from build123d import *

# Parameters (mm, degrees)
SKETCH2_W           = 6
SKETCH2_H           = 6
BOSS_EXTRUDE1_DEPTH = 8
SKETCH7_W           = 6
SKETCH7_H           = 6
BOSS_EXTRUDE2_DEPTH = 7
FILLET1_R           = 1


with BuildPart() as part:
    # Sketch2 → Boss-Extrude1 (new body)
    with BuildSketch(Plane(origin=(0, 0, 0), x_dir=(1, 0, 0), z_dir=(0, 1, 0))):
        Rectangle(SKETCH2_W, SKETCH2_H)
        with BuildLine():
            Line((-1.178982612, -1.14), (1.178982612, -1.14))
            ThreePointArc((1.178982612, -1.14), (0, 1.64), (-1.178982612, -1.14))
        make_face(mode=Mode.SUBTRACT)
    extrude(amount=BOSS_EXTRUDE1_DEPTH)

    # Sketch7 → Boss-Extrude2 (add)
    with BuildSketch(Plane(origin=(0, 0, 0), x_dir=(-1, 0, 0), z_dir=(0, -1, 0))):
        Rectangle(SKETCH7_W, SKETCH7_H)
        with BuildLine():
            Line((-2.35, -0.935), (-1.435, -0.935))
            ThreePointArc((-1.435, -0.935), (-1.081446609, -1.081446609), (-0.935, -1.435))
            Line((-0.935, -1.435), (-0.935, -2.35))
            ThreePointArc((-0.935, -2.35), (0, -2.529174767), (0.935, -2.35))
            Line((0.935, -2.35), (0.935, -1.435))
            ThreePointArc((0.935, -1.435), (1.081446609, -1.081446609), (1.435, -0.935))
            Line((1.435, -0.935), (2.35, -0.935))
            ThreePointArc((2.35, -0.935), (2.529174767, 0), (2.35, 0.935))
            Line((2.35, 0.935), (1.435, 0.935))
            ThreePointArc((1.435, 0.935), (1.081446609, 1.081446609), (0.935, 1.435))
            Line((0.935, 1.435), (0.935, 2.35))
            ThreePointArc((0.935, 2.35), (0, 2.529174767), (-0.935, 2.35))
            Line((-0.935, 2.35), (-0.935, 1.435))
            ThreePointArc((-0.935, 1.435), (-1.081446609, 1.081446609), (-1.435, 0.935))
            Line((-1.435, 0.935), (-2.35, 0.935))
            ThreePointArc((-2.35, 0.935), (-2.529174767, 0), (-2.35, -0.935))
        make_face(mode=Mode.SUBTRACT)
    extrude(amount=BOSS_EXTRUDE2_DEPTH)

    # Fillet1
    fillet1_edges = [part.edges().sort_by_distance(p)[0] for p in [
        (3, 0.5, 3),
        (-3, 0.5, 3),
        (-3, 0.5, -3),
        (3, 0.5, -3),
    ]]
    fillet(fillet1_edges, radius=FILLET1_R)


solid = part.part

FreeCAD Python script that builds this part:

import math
import FreeCAD as App
import Part
import Sketcher

V = App.Vector


def edges_at(feature, points):
    """Names of the edges that pass closest to the given points."""
    edges = feature.Shape.Edges
    near = lambda p: min(range(len(edges)), key=lambda i: edges[i].distToShape(Part.Vertex(*p))[0])
    return sorted({f"Edge{near(p) + 1}" for p in points})


def add_polygon(sketch, points):
    """Adds a closed chain of lines whose ends are joined by coincident constraints."""
    first, n = sketch.GeometryCount, len(points)
    for a, b in zip(points, points[1:] + points[:1]):
        sketch.addGeometry(Part.LineSegment(App.Vector(*a, 0), App.Vector(*b, 0)), False)
    for i in range(n):
        sketch.addConstraint(Sketcher.Constraint("Coincident", first + i, 2, first + (i + 1) % n, 1))

doc = App.newDocument("Part")
body = doc.addObject("PartDesign::Body", "Body")

# Sketch on XZ plane
sketch1 = body.newObject("Sketcher::SketchObject", "Sketch")
sketch1.AttachmentSupport = (doc.getObject("XZ_Plane"), [""])
sketch1.MapMode = "FlatFace"
add_polygon(sketch1, [(-3, -3), (-3, 3), (3, 3), (3, -3)])  # lines 0-3
sketch1.addGeometry(Part.LineSegment(V(1.2, 1.1, 0), V(-1.2, 1.1, 0)), False)  # 4
sketch1.addGeometry(Part.ArcOfCircle(Part.Circle(V(0, 0, 0), V(0, 0, 1), 1.6), math.radians(136), math.radians(404)), False)  # 5
sketch1.addConstraint(Sketcher.Constraint("Coincident", 4, 1, 5, 2))
sketch1.addConstraint(Sketcher.Constraint("Coincident", 5, 1, 4, 2))
sketch1.addConstraint(Sketcher.Constraint("Vertical", 0))
sketch1.addConstraint(Sketcher.Constraint("Horizontal", 1))
sketch1.addConstraint(Sketcher.Constraint("Vertical", 2))
sketch1.addConstraint(Sketcher.Constraint("Horizontal", 3))
sketch1.addConstraint(Sketcher.Constraint("Horizontal", 4))
sketch1.addConstraint(Sketcher.Constraint("Coincident", 5, 3, -1, 1))
sketch1.addConstraint(Sketcher.Constraint("Symmetric", 0, 2, 2, 2, -1, 1))
sketch1.addConstraint(Sketcher.Constraint("Equal", 3, 0))
sketch1.addConstraint(Sketcher.Constraint("DistanceX", 1, 1, 1, 2, 6.0))
sketch1.addConstraint(Sketcher.Constraint("Radius", 5, 1.64))
sketch1.addConstraint(Sketcher.Constraint("DistanceY", -1, 1, 4, 1, 1.14))
pad1 = body.newObject("PartDesign::Pad", "Pad")
pad1.Profile = sketch1
pad1.Length = 8
pad1.Reversed = True

# Sketch on XZ plane
sketch2 = body.newObject("Sketcher::SketchObject", "Sketch001")
sketch2.AttachmentSupport = (doc.getObject("XZ_Plane"), [""])
sketch2.MapMode = "FlatFace"
add_polygon(sketch2, [(3, -3), (3, 3), (-3, 3), (-3, -3)])  # lines 0-3
sketch2.addGeometry(Part.LineSegment(V(1.44, 0.94, 0), V(2.35, 0.94, 0)), False)  # 4
sketch2.addGeometry(Part.ArcOfCircle(Part.Circle(V(0, 0, 0), V(0, 0, 1), 2.53), math.radians(-22), math.radians(22)), False)  # 5
sketch2.addGeometry(Part.LineSegment(V(2.35, -0.94, 0), V(1.44, -0.94, 0)), False)  # 6
sketch2.addGeometry(Part.ArcOfCircle(Part.Circle(V(1.43, -1.43, 0), V(0, 0, 1), 0.5), math.radians(90), math.radians(180)), False)  # 7
sketch2.addGeometry(Part.LineSegment(V(0.94, -1.44, 0), V(0.94, -2.35, 0)), False)  # 8
sketch2.addGeometry(Part.ArcOfCircle(Part.Circle(V(0, 0, 0), V(0, 0, 1), 2.53), math.radians(-112), math.radians(-68)), False)  # 9
sketch2.addGeometry(Part.LineSegment(V(-0.94, -2.35, 0), V(-0.94, -1.44, 0)), False)  # 10
sketch2.addGeometry(Part.ArcOfCircle(Part.Circle(V(-1.43, -1.43, 0), V(0, 0, 1), 0.5), math.radians(0), math.radians(90)), False)  # 11
sketch2.addGeometry(Part.LineSegment(V(-1.44, -0.94, 0), V(-2.35, -0.94, 0)), False)  # 12
sketch2.addGeometry(Part.ArcOfCircle(Part.Circle(V(0, 0, 0), V(0, 0, 1), 2.53), math.radians(158), math.radians(202)), False)  # 13
sketch2.addGeometry(Part.LineSegment(V(-2.35, 0.94, 0), V(-1.44, 0.94, 0)), False)  # 14
sketch2.addGeometry(Part.ArcOfCircle(Part.Circle(V(-1.43, 1.43, 0), V(0, 0, 1), 0.5), math.radians(-90), math.radians(0)), False)  # 15
sketch2.addGeometry(Part.LineSegment(V(-0.94, 1.44, 0), V(-0.94, 2.35, 0)), False)  # 16
sketch2.addGeometry(Part.ArcOfCircle(Part.Circle(V(0, 0, 0), V(0, 0, 1), 2.53), math.radians(68), math.radians(112)), False)  # 17
sketch2.addGeometry(Part.LineSegment(V(0.94, 2.35, 0), V(0.94, 1.44, 0)), False)  # 18
sketch2.addGeometry(Part.ArcOfCircle(Part.Circle(V(1.43, 1.43, 0), V(0, 0, 1), 0.5), math.radians(180), math.radians(270)), False)  # 19
sketch2.addConstraint(Sketcher.Constraint("Coincident", 4, 2, 5, 2))
sketch2.addConstraint(Sketcher.Constraint("Coincident", 5, 1, 6, 1))
sketch2.addConstraint(Sketcher.Constraint("Tangent", 6, 2, 7, 1))
sketch2.addConstraint(Sketcher.Constraint("Tangent", 7, 2, 8, 1))
sketch2.addConstraint(Sketcher.Constraint("Coincident", 8, 2, 9, 2))
sketch2.addConstraint(Sketcher.Constraint("Coincident", 9, 1, 10, 1))
sketch2.addConstraint(Sketcher.Constraint("Tangent", 10, 2, 11, 1))
sketch2.addConstraint(Sketcher.Constraint("Tangent", 11, 2, 12, 1))
sketch2.addConstraint(Sketcher.Constraint("Coincident", 12, 2, 13, 2))
sketch2.addConstraint(Sketcher.Constraint("Coincident", 13, 1, 14, 1))
sketch2.addConstraint(Sketcher.Constraint("Tangent", 14, 2, 15, 1))
sketch2.addConstraint(Sketcher.Constraint("Tangent", 15, 2, 16, 1))
sketch2.addConstraint(Sketcher.Constraint("Coincident", 16, 2, 17, 2))
sketch2.addConstraint(Sketcher.Constraint("Coincident", 17, 1, 18, 1))
sketch2.addConstraint(Sketcher.Constraint("Tangent", 18, 2, 19, 1))
sketch2.addConstraint(Sketcher.Constraint("Tangent", 19, 2, 4, 1))
sketch2.addConstraint(Sketcher.Constraint("Vertical", 0))
sketch2.addConstraint(Sketcher.Constraint("Horizontal", 1))
sketch2.addConstraint(Sketcher.Constraint("Vertical", 2))
sketch2.addConstraint(Sketcher.Constraint("Horizontal", 3))
sketch2.addConstraint(Sketcher.Constraint("Horizontal", 4))
sketch2.addConstraint(Sketcher.Constraint("Horizontal", 6))
sketch2.addConstraint(Sketcher.Constraint("Vertical", 8))
sketch2.addConstraint(Sketcher.Constraint("Vertical", 10))
sketch2.addConstraint(Sketcher.Constraint("Horizontal", 12))
sketch2.addConstraint(Sketcher.Constraint("Horizontal", 14))
sketch2.addConstraint(Sketcher.Constraint("Vertical", 16))
sketch2.addConstraint(Sketcher.Constraint("Vertical", 18))
sketch2.addConstraint(Sketcher.Constraint("Coincident", 5, 3, -1, 1))
sketch2.addConstraint(Sketcher.Constraint("Coincident", 9, 3, -1, 1))
sketch2.addConstraint(Sketcher.Constraint("Coincident", 13, 3, -1, 1))
sketch2.addConstraint(Sketcher.Constraint("Coincident", 17, 3, -1, 1))
sketch2.addConstraint(Sketcher.Constraint("Equal", 5, 9))
sketch2.addConstraint(Sketcher.Constraint("Equal", 7, 11))
sketch2.addConstraint(Sketcher.Constraint("Equal", 9, 13))
sketch2.addConstraint(Sketcher.Constraint("Equal", 11, 15))
sketch2.addConstraint(Sketcher.Constraint("Equal", 13, 17))
sketch2.addConstraint(Sketcher.Constraint("Equal", 15, 19))
sketch2.addConstraint(Sketcher.Constraint("Symmetric", 7, 3, 15, 3, -1, 1))
sketch2.addConstraint(Sketcher.Constraint("Symmetric", 11, 3, 19, 3, -1, 1))
sketch2.addConstraint(Sketcher.Constraint("Symmetric", 0, 2, 2, 2, -1, 1))
sketch2.addConstraint(Sketcher.Constraint("Symmetric", 7, 3, 11, 3, -2))
sketch2.addConstraint(Sketcher.Constraint("Equal", 3, 0))
sketch2.addConstraint(Sketcher.Constraint("Equal", 14, 8))
sketch2.addConstraint(Sketcher.Constraint("Radius", 7, 0.5))
sketch2.addConstraint(Sketcher.Constraint("DistanceX", 1, 2, 1, 1, 6.0))
sketch2.addConstraint(Sketcher.Constraint("DistanceX", 4, 1, 4, 2, 0.915))
sketch2.addConstraint(Sketcher.Constraint("DistanceX", -1, 1, 4, 2, 2.35))
pad2 = body.newObject("PartDesign::Pad", "Pad001")
pad2.Profile = sketch2
pad2.Length = 7
doc.recompute()

fillet = body.newObject("PartDesign::Fillet", "Fillet")
fillet.Base = (pad2, edges_at(pad2, [
    (3, 0.5, 3),
    (-3, 0.5, 3),
    (-3, 0.5, -3),
    (3, 0.5, -3),
]))
fillet.Radius = 1

doc.recompute()
